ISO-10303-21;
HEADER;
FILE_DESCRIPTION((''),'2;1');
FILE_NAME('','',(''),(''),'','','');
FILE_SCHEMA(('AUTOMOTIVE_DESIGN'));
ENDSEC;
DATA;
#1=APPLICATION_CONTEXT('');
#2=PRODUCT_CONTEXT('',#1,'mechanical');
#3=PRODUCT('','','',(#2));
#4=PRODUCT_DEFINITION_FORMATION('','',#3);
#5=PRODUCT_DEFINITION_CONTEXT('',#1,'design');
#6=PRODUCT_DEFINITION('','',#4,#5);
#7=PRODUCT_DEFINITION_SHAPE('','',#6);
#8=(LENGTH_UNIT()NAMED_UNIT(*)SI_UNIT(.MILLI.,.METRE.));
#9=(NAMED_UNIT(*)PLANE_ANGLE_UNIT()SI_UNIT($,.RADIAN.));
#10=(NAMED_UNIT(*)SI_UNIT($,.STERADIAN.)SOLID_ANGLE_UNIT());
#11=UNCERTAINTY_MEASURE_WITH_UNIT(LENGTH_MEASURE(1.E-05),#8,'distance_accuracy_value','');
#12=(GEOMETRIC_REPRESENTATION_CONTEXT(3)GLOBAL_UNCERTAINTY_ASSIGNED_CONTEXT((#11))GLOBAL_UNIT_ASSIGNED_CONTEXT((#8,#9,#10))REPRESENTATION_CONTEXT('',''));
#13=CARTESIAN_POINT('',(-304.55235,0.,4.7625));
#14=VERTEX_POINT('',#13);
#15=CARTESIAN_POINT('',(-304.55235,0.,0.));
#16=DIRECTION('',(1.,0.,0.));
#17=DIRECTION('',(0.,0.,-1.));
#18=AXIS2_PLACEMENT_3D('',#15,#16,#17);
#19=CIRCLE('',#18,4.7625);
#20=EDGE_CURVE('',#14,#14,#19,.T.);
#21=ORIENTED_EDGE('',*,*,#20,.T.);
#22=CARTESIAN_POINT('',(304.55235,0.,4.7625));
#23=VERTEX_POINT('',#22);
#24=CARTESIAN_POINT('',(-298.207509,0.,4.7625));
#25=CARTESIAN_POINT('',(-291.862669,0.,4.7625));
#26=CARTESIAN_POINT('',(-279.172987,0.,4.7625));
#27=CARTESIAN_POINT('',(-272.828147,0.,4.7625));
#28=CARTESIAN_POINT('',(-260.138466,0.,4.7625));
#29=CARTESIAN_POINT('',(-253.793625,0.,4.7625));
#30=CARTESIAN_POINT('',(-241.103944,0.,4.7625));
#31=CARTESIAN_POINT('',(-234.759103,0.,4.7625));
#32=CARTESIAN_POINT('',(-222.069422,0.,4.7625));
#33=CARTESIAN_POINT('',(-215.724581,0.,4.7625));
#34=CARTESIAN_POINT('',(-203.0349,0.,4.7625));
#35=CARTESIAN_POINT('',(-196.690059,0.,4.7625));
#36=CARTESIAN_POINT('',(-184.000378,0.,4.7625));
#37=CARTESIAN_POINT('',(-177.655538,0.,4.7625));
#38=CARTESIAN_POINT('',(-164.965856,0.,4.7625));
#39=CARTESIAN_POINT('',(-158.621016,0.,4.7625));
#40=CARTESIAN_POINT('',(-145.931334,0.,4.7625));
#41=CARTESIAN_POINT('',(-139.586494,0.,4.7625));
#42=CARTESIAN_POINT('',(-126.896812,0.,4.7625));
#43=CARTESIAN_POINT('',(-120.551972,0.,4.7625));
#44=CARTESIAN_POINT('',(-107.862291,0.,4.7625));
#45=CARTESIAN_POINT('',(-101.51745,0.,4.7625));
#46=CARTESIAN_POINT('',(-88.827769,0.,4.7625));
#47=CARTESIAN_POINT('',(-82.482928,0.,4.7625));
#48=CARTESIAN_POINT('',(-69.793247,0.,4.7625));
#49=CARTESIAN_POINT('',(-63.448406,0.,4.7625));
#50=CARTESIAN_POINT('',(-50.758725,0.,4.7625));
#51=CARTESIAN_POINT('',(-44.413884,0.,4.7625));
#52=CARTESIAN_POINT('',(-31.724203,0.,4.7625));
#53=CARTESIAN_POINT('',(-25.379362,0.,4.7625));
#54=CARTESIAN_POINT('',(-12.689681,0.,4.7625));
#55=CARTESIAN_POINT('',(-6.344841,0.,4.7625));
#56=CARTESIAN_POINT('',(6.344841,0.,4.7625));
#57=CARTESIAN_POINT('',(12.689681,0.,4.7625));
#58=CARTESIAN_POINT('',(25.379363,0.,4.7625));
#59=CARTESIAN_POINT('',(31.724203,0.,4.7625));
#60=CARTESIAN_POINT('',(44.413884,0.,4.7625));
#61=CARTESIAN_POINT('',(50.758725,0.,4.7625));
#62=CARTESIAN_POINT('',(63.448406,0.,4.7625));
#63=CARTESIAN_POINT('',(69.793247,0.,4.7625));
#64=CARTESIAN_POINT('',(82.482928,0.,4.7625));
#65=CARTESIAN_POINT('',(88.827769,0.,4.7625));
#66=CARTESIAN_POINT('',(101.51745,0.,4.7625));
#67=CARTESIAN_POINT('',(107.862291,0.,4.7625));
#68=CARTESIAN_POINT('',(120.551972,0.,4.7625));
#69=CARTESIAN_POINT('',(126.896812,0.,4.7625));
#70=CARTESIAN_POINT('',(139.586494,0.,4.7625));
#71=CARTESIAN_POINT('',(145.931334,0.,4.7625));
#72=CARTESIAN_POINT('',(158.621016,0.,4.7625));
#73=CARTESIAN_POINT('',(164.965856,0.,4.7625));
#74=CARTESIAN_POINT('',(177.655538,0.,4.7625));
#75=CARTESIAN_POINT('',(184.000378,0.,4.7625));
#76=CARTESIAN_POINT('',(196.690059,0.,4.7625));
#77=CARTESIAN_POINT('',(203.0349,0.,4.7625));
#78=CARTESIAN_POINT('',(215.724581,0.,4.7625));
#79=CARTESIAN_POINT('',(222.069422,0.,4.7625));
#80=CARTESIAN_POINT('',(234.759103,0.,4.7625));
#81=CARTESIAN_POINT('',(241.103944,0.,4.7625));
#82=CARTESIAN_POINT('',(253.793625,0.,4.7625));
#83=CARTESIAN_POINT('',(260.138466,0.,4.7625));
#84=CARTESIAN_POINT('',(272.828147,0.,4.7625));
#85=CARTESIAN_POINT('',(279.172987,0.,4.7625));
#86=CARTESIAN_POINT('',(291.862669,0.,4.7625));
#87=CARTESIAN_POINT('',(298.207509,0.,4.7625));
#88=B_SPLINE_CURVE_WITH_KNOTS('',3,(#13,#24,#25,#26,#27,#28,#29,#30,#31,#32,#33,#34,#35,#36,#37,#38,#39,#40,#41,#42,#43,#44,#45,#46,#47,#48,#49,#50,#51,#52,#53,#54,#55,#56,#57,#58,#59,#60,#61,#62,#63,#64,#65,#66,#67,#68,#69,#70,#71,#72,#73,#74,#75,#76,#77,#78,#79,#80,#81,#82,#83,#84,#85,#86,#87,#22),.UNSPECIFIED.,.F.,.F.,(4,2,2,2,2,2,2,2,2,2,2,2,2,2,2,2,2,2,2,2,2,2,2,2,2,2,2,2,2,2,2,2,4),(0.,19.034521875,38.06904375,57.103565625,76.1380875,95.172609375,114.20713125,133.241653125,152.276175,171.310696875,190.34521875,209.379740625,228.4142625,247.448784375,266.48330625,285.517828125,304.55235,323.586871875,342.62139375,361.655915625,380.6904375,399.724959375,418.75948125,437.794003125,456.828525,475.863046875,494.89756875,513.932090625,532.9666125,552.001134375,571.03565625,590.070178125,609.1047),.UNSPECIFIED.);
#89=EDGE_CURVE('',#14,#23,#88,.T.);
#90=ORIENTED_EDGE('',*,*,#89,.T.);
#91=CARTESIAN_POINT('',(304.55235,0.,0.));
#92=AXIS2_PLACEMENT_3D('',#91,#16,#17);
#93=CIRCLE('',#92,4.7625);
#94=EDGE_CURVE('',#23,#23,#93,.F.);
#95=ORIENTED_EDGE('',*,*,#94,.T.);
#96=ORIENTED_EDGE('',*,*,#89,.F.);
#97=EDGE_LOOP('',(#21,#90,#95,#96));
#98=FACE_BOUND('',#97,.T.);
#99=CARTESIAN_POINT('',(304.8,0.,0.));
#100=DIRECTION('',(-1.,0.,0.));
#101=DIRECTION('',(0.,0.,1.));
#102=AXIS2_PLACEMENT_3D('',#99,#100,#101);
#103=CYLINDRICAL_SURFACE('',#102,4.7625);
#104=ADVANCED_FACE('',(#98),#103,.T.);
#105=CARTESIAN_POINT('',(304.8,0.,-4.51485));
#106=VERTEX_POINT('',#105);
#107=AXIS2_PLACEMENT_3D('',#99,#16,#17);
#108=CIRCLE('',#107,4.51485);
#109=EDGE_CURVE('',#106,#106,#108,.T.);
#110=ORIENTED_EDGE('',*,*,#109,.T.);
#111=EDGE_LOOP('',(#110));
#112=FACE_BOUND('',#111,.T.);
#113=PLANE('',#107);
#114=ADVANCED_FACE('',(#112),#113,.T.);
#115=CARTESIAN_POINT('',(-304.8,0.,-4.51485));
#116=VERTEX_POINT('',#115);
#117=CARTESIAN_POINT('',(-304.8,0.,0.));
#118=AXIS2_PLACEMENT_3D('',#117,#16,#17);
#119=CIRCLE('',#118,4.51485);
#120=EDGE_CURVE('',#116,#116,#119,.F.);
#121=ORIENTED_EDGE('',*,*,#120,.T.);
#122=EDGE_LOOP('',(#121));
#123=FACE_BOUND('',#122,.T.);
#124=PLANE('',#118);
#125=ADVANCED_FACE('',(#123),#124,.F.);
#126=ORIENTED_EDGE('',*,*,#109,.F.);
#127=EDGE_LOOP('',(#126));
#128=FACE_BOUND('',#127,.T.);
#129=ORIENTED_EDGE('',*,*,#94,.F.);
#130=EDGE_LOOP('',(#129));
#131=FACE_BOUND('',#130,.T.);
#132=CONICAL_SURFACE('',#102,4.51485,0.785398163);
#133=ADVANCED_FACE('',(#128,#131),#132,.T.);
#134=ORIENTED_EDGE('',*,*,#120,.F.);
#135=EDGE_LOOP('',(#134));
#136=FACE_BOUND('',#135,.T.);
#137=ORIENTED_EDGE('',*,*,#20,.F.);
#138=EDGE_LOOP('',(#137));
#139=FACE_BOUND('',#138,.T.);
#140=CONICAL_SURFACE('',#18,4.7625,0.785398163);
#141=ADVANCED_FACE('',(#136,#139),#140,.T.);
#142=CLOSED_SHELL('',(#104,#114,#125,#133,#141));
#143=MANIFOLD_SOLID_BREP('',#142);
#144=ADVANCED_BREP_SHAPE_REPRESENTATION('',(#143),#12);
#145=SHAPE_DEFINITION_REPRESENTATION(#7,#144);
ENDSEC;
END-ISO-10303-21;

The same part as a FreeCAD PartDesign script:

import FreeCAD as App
import Part
import Sketcher
from FreeCAD import Vector
Q = App.Units.Quantity


def edges_at(feature, points):
    """Names of the edges that pass closest to the given points."""
    edges = feature.Shape.Edges
    near = lambda p: min(range(len(edges)), key=lambda i: edges[i].distToShape(Part.Vertex(*p))[0])
    return sorted({f"Edge{near(p) + 1}" for p in points})

doc = App.newDocument("Part")
body = doc.addObject("PartDesign::Body", "Body")

sketch1 = body.newObject("Sketcher::SketchObject", "Sketch")
sketch1.AttachmentSupport = (doc.getObject("YZ_Plane"), [""])
sketch1.MapMode = "FlatFace"
sketch1.addGeometry(Part.Circle(Vector(0, 0, 0), Vector(0, 0, 1), 4.7625), False)
sketch1.addConstraint([
    Sketcher.Constraint("Coincident", 0, 3, -1, 1),
    Sketcher.Constraint("Diameter", 0, Q("0.375 in")),
])
pad1 = body.newObject("PartDesign::Pad", "Pad")
pad1.Profile = sketch1
pad1.Type = "TwoLengths"
pad1.Length = Q("12 in")
pad1.Length2 = Q("12 in")
doc.recompute()

chamfer = body.newObject("PartDesign::Chamfer", "Chamfer")
chamfer.Base = (pad1, edges_at(pad1, [(-304.8, 0, -4.763), (304.8, 0, -4.763)]))
chamfer.Size = 0.24765

doc.recompute()
